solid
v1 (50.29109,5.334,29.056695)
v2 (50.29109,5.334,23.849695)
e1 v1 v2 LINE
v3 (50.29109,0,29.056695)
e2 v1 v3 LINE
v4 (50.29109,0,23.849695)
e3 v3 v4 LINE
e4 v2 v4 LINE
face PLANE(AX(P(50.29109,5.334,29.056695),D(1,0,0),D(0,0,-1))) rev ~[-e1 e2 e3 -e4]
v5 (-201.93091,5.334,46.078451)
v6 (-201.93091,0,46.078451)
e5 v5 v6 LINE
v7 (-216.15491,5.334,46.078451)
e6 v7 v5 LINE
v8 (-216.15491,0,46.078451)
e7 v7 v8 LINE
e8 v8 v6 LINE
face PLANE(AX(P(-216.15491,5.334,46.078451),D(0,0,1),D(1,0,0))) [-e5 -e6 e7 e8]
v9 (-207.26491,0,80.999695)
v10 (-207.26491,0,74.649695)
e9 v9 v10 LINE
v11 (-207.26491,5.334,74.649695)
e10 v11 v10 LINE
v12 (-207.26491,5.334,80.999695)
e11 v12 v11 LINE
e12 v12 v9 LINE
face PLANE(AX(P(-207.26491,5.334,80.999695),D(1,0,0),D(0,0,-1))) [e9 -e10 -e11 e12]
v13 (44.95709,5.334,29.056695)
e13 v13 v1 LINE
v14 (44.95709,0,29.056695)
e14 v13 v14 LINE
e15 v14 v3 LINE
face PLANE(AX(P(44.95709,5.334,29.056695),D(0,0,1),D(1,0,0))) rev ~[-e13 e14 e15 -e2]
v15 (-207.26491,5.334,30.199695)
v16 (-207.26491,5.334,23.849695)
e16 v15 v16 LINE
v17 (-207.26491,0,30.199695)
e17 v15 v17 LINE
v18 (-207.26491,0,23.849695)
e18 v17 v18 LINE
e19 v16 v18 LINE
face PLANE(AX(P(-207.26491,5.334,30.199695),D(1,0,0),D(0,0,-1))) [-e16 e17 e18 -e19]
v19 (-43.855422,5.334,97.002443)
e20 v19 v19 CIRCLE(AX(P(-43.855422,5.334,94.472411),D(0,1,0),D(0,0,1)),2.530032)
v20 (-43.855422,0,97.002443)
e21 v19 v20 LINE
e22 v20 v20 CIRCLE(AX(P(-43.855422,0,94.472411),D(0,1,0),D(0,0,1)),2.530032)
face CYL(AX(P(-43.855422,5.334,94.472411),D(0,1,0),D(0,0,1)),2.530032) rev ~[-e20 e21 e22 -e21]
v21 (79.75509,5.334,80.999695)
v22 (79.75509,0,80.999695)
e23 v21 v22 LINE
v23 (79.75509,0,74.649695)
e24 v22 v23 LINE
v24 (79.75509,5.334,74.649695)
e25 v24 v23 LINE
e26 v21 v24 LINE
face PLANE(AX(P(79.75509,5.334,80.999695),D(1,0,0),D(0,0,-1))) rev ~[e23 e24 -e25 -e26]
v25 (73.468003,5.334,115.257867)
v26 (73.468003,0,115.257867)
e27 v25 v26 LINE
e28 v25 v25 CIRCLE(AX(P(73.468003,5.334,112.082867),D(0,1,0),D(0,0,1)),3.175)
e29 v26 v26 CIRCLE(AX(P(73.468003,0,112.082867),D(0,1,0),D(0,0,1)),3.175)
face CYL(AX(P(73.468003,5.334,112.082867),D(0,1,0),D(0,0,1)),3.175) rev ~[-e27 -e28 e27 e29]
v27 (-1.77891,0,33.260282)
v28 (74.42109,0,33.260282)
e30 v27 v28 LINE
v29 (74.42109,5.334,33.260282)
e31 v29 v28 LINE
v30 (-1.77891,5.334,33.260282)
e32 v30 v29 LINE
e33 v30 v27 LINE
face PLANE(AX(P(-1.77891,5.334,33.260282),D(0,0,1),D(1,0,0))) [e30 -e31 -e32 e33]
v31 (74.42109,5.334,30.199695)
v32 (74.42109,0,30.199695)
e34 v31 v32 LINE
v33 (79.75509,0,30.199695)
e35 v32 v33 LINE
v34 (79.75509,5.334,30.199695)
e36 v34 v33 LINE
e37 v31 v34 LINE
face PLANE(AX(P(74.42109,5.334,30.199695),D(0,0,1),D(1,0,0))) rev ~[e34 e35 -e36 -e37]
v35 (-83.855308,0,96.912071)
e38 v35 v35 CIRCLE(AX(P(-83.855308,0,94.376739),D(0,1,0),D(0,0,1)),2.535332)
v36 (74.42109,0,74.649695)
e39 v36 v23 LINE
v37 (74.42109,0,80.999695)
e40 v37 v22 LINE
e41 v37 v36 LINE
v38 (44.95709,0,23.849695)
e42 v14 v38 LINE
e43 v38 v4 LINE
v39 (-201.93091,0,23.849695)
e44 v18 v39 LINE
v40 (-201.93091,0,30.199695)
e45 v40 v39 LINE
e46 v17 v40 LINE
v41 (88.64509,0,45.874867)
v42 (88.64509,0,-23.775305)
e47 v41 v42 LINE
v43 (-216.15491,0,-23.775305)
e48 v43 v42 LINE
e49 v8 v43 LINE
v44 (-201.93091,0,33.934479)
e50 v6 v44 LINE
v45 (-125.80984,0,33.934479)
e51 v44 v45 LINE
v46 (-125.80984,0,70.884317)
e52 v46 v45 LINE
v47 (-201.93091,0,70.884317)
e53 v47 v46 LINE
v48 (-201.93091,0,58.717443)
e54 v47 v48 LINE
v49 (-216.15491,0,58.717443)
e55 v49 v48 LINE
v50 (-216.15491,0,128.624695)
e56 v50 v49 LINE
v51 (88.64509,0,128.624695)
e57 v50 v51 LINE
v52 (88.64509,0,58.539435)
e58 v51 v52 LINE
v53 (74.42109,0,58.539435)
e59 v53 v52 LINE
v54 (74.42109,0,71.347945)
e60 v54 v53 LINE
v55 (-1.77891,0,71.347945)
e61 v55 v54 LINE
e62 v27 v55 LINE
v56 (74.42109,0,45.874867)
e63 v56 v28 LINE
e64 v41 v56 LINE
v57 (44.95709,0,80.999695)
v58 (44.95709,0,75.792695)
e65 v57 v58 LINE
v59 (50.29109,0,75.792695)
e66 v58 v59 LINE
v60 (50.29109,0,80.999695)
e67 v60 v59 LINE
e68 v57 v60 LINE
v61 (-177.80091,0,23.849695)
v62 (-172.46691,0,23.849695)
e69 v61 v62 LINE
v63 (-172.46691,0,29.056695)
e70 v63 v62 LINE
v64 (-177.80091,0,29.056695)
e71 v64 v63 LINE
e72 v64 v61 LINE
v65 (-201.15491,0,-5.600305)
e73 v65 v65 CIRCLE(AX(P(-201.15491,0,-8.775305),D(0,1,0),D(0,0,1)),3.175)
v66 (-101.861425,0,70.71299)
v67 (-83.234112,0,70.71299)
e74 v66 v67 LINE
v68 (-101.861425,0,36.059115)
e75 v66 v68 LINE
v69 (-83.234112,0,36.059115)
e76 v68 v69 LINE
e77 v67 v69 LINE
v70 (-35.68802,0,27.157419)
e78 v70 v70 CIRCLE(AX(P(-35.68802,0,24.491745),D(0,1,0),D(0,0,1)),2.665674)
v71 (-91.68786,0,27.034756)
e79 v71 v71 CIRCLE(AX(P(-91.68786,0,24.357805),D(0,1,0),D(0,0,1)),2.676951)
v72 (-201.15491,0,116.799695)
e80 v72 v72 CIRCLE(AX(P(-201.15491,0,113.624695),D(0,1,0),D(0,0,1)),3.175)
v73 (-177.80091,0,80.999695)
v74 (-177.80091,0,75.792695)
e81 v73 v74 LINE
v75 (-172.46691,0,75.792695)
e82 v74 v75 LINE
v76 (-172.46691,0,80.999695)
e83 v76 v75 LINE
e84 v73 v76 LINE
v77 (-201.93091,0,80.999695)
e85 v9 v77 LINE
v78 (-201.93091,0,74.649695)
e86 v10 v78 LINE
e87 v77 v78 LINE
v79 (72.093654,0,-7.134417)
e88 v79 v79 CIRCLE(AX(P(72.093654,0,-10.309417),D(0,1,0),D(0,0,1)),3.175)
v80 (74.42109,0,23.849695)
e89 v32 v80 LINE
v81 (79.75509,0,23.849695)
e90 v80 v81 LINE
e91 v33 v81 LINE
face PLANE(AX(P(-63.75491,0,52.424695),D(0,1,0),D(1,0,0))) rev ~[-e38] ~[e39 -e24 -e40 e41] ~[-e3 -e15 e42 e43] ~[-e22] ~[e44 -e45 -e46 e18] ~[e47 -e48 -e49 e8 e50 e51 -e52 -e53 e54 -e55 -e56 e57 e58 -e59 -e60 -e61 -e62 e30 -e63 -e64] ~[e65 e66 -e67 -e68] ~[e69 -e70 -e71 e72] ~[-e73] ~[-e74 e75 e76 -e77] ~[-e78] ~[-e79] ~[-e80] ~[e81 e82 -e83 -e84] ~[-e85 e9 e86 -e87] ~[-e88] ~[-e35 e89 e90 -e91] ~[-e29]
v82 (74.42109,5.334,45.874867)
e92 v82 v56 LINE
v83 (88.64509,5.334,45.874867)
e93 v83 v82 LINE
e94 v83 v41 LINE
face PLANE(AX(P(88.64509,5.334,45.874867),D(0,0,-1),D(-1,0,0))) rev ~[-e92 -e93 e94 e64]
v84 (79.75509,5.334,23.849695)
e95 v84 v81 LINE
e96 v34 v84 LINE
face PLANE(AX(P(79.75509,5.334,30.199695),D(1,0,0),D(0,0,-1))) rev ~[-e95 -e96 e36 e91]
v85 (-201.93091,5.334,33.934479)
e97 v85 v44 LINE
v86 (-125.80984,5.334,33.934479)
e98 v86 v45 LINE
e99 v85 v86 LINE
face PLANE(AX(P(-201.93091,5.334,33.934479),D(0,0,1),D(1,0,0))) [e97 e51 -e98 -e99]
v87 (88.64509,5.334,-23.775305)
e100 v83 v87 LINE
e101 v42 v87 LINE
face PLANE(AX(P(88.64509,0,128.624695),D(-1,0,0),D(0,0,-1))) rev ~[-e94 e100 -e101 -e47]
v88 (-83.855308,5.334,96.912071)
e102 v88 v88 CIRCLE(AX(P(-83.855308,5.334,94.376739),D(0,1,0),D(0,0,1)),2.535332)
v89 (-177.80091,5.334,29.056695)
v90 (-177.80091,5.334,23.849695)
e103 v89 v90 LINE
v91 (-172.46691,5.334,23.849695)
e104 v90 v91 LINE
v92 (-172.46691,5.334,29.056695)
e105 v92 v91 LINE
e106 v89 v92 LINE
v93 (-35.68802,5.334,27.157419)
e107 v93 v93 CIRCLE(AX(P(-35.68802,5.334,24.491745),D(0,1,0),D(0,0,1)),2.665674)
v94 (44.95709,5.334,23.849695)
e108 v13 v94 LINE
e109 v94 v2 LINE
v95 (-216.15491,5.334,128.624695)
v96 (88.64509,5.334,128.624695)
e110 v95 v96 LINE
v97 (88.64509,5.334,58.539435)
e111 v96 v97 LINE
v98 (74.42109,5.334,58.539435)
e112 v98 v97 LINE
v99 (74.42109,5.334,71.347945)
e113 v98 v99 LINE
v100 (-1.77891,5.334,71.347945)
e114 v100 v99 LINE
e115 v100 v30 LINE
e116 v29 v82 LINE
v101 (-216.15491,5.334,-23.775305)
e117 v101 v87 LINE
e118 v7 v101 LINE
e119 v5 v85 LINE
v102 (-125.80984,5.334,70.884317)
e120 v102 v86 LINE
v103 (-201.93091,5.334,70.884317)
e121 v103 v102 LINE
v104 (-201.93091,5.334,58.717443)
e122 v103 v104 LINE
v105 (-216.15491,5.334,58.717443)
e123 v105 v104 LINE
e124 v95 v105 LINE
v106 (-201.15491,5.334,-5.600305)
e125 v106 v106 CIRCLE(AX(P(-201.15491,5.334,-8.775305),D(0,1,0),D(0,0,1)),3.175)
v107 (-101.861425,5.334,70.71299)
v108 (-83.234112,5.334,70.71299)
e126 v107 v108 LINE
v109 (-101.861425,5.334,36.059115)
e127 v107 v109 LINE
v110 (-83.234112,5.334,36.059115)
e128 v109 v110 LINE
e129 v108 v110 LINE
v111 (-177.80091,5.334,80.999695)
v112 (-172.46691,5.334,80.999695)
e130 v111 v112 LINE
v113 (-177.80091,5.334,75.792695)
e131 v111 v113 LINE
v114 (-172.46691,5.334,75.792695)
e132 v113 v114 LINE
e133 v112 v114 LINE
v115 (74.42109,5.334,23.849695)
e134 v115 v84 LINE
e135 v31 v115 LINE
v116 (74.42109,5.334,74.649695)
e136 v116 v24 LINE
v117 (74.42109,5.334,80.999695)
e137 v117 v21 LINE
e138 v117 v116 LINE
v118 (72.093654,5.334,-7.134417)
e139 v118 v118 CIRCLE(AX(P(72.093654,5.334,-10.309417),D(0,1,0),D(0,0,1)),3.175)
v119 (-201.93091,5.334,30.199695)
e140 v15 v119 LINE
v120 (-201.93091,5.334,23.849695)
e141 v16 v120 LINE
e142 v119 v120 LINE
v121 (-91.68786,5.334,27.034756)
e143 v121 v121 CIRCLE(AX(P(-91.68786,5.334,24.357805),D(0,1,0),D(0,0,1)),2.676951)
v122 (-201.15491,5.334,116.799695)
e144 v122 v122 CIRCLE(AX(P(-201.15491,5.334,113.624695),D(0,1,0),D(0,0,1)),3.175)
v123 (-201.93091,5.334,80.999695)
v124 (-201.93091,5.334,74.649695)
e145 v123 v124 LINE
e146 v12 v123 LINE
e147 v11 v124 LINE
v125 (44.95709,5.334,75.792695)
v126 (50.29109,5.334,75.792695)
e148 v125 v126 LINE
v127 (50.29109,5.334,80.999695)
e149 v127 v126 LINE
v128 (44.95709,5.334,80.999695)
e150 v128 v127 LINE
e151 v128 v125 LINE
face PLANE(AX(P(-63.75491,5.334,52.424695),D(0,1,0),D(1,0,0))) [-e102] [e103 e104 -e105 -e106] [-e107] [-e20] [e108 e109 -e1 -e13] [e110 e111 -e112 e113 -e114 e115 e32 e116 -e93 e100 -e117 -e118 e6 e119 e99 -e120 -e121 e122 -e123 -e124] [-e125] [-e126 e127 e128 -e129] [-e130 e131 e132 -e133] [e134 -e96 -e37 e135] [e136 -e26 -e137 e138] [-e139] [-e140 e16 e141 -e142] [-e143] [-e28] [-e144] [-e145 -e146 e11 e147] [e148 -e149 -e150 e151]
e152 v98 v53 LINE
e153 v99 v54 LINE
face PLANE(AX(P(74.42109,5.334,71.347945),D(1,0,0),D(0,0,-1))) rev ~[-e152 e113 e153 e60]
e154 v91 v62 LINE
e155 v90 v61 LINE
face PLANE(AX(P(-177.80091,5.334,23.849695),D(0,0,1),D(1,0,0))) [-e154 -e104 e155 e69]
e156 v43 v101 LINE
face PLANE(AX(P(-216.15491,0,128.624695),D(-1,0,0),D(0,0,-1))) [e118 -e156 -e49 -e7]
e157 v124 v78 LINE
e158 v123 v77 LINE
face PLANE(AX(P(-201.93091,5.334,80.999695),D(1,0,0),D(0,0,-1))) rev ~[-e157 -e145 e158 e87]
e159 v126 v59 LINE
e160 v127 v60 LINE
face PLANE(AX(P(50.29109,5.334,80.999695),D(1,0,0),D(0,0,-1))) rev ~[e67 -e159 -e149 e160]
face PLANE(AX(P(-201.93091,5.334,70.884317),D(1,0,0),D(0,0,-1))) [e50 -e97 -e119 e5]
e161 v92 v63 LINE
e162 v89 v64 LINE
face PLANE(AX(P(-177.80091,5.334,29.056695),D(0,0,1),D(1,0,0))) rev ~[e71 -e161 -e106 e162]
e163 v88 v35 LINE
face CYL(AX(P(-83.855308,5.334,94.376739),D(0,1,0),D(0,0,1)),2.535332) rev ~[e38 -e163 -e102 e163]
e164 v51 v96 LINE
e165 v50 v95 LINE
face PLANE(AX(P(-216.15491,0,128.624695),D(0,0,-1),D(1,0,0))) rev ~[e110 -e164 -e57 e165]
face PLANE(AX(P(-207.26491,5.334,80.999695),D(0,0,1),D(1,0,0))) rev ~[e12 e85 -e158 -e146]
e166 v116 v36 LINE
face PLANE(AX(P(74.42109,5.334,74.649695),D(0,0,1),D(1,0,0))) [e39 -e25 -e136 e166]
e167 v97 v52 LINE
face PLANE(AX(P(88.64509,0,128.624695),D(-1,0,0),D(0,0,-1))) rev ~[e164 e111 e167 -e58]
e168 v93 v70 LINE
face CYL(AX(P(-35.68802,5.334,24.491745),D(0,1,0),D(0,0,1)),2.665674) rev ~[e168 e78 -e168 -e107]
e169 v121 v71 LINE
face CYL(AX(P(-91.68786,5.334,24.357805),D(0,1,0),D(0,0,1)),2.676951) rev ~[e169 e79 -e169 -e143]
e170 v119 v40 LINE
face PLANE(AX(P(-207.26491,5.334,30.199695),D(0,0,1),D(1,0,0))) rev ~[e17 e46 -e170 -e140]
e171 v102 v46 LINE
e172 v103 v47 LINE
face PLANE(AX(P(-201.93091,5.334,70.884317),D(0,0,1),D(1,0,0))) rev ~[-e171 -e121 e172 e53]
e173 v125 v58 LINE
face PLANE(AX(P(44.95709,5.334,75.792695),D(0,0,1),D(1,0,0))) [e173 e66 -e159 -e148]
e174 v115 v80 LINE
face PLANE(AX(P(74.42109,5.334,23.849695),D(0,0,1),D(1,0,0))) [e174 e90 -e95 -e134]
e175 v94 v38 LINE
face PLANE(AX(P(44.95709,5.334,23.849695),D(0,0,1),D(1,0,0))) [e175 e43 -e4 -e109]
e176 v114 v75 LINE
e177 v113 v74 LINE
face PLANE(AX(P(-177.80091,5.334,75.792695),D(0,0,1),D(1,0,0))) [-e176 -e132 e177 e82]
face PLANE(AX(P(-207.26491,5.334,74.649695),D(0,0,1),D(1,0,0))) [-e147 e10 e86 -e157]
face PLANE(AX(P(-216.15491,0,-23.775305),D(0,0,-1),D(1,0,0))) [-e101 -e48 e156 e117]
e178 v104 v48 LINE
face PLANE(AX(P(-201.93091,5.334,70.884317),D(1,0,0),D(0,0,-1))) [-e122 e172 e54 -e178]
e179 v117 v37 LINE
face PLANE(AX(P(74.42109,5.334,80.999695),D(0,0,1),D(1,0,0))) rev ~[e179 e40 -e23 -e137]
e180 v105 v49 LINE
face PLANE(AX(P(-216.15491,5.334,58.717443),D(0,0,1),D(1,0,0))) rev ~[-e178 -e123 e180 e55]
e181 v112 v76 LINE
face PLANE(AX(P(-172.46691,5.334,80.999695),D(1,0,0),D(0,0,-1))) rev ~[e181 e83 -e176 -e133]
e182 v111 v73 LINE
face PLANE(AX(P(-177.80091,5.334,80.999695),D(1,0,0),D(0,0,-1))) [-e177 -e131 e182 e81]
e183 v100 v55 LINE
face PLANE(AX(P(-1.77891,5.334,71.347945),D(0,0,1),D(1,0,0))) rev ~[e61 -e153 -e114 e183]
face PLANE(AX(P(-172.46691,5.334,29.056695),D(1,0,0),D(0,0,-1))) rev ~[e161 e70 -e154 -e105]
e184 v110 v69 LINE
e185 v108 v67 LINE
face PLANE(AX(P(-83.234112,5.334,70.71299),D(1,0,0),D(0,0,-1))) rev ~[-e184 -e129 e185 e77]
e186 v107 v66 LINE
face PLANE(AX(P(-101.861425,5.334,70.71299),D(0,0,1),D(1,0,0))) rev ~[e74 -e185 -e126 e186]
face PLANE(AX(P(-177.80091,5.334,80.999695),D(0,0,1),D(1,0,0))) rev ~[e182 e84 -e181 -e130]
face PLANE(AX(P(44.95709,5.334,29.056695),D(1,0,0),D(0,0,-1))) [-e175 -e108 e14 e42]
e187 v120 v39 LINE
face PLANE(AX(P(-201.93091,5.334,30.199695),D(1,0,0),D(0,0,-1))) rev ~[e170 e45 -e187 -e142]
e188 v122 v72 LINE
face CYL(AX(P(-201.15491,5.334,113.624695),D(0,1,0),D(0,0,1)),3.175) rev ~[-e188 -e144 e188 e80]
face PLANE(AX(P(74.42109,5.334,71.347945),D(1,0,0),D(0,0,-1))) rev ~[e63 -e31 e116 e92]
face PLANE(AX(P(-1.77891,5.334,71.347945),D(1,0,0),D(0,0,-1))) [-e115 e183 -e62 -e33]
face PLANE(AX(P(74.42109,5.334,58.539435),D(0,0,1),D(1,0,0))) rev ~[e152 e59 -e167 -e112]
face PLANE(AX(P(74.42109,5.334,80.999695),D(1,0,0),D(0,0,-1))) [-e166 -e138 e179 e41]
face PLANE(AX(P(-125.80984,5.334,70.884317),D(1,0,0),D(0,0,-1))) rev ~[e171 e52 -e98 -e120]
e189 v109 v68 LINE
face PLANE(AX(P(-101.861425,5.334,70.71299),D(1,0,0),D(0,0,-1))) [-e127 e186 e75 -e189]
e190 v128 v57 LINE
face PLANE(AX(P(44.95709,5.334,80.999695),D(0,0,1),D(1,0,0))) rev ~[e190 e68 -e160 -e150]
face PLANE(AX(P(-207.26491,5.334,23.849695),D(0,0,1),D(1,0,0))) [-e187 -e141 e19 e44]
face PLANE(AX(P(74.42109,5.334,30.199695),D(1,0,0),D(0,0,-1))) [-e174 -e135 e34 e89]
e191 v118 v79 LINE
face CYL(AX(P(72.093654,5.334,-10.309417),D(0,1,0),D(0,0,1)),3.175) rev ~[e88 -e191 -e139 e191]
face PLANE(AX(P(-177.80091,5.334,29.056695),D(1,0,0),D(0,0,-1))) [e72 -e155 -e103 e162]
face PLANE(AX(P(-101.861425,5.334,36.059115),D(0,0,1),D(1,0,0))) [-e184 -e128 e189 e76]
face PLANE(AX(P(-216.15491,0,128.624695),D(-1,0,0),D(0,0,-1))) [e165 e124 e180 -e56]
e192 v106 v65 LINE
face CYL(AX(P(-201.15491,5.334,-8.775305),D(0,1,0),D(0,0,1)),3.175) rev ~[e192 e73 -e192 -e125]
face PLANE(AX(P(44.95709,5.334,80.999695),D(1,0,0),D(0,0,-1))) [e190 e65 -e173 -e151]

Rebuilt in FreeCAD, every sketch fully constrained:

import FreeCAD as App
import Part
import Sketcher
Q = App.Units.Quantity

doc = App.newDocument("Part")
params = doc.addObject("Spreadsheet::Sheet", "Params")
for row, (alias, value) in enumerate([
    ("sketch1_width", "12 in"),
    ("sketch1_height", "6 in"),
    ("pad1_length", "0.21 in"),
    ("sketch2_diameter", "0.25 in"),
    ("pocket1_length", "10 mm"),
    ("sketch4_width", "0.21 in"),
    ("sketch4_height", "0.25 in"),
    ("sketch4_height2", "0.205 in"),
    ("sketch5_width", "3 in"),
    ("sketch5_height", "1.35 in"),
    ("sketch6_width", "3 in"),
    ("sketch8_width", "0.56 in"),
    ("sketch10_width", "0.56 in"),
], start=1):
    params.set(f"A{row}", alias)
    params.set(f"B{row}", "=" + value)
    params.setAlias(f"B{row}", alias)

body = doc.addObject("PartDesign::Body", "Body")

# Sketch on XZ plane
sketch1 = doc.addObject("Sketcher::SketchObject", "Sketch")
body.addObject(sketch1)
sketch1.AttachmentSupport = (doc.XZ_Plane, [""])
sketch1.MapMode = "FlatFace"
sketch1.addGeometry(Part.LineSegment(App.Vector(-216, -24, 0), App.Vector(-216, 129, 0)), False)
sketch1.addGeometry(Part.LineSegment(App.Vector(-216, 129, 0), App.Vector(89, 129, 0)), False)
sketch1.addGeometry(Part.LineSegment(App.Vector(89, 129, 0), App.Vector(89, -24, 0)), False)
sketch1.addGeometry(Part.LineSegment(App.Vector(89, -24, 0), App.Vector(-216, -24, 0)), False)
sketch1.addConstraint(Sketcher.Constraint("Coincident", 0, 2, 1, 1))
sketch1.addConstraint(Sketcher.Constraint("Coincident", 1, 2, 2, 1))
sketch1.addConstraint(Sketcher.Constraint("Coincident", 2, 2, 3, 1))
sketch1.addConstraint(Sketcher.Constraint("Coincident", 3, 2, 0, 1))
sketch1.addConstraint(Sketcher.Constraint("Vertical", 0))
sketch1.addConstraint(Sketcher.Constraint("Horizontal", 1))
sketch1.addConstraint(Sketcher.Constraint("Vertical", 2))
sketch1.addConstraint(Sketcher.Constraint("Horizontal", 3))
sketch1.addConstraint(Sketcher.Constraint("DistanceX", 1, 1, 1, 2, Q("12 in")))
sketch1.addConstraint(Sketcher.Constraint("DistanceY", 0, 1, 0, 2, Q("6 in")))
sketch1.addConstraint(Sketcher.Constraint("DistanceX", 0, 2, -1, 1, 216.15491))
sketch1.addConstraint(Sketcher.Constraint("DistanceY", -1, 1, 0, 2, 128.624695))
sketch1.setExpression("Constraints[8]", "Params.sketch1_width")
sketch1.setExpression("Constraints[9]", "Params.sketch1_height")
pad1 = doc.addObject("PartDesign::Pad", "Pad")
body.addObject(pad1)
pad1.Profile = sketch1
pad1.setExpression("Length", "Params.pad1_length")
pad1.Reversed = True

# Sketch on XZ plane
sketch2 = doc.addObject("Sketcher::SketchObject", "Sketch001")
body.addObject(sketch2)
sketch2.AttachmentSupport = (doc.XZ_Plane, [""])
sketch2.MapMode = "FlatFace"
sketch2.AttachmentOffset = App.Placement(App.Vector(0, 0, -0.21 * 25.4), App.Rotation())
sketch2.addGeometry(Part.Circle(App.Vector(-201.2, 113.6, 0), App.Vector(0, 0, 1), 3.2), False)
sketch2.addGeometry(Part.Circle(App.Vector(-201.2, -8.8, 0), App.Vector(0, 0, 1), 3.2), False)
sketch2.addGeometry(Part.Circle(App.Vector(73.5, 112.1, 0), App.Vector(0, 0, 1), 3.2), False)
sketch2.addGeometry(Part.Circle(App.Vector(72.1, -10.3, 0), App.Vector(0, 0, 1), 3.2), False)
sketch2.addConstraint(Sketcher.Constraint("Equal", 0, 1))
sketch2.addConstraint(Sketcher.Constraint("Equal", 1, 2))
sketch2.addConstraint(Sketcher.Constraint("Equal", 2, 3))
sketch2.addConstraint(Sketcher.Constraint("Vertical", 0, 3, 1, 3))
sketch2.addConstraint(Sketcher.Constraint("Diameter", 0, Q("0.25 in")))
sketch2.addConstraint(Sketcher.Constraint("DistanceY", 1, 3, 0, 3, 122.4))
sketch2.addConstraint(Sketcher.Constraint("DistanceX", 0, 3, -1, 1, 201.15491))
sketch2.addConstraint(Sketcher.Constraint("DistanceY", 2, 3, 0, 3, 1.541828))
sketch2.addConstraint(Sketcher.Constraint("DistanceX", 3, 3, 2, 3, 1.374349))
sketch2.addConstraint(Sketcher.Constraint("DistanceY", -1, 1, 0, 3, 113.624695))
sketch2.addConstraint(Sketcher.Constraint("DistanceX", -1, 1, 2, 3, 73.468003))
sketch2.addConstraint(Sketcher.Constraint("DistanceY", 3, 3, -1, 1, 10.309417))
sketch2.setExpression("Constraints[4]", "Params.sketch2_diameter")
pocket1 = doc.addObject("PartDesign::Pocket", "Pocket")
body.addObject(pocket1)
pocket1.Profile = sketch2
pocket1.setExpression("Length", "Params.pocket1_length")
pocket1.Reversed = True

# Sketch on XZ plane
sketch3 = doc.addObject("Sketcher::SketchObject", "Sketch002")
body.addObject(sketch3)
sketch3.AttachmentSupport = (doc.XZ_Plane, [""])
sketch3.MapMode = "FlatFace"
sketch3.AttachmentOffset = App.Placement(App.Vector(0, 0, -0.21 * 25.4), App.Rotation())
sketch3.addGeometry(Part.Circle(App.Vector(-91.7, 24.4, 0), App.Vector(0, 0, 1), 2.7), False)
sketch3.addGeometry(Part.Circle(App.Vector(-35.7, 24.5, 0), App.Vector(0, 0, 1), 2.7), False)
sketch3.addGeometry(Part.Circle(App.Vector(-43.9, 94.5, 0), App.Vector(0, 0, 1), 2.5), False)
sketch3.addGeometry(Part.Circle(App.Vector(-83.9, 94.4, 0), App.Vector(0, 0, 1), 2.5), False)
sketch3.addConstraint(Sketcher.Constraint("Diameter", 0, 5.353902))
sketch3.addConstraint(Sketcher.Constraint("Diameter", 1, 5.331349))
sketch3.addConstraint(Sketcher.Constraint("Diameter", 2, 5.060064))
sketch3.addConstraint(Sketcher.Constraint("Diameter", 3, 5.070663))
sketch3.addConstraint(Sketcher.Constraint("DistanceX", 2, 3, 1, 3, 8.167402))
sketch3.addConstraint(Sketcher.Constraint("DistanceX", 0, 3, -1, 1, 91.68786))
sketch3.addConstraint(Sketcher.Constraint("DistanceX", 1, 3, -1, 1, 35.68802))
sketch3.addConstraint(Sketcher.Constraint("DistanceY", -1, 1, 2, 3, 94.472411))
sketch3.addConstraint(Sketcher.Constraint("DistanceY", -1, 1, 3, 3, 94.376739))
sketch3.addConstraint(Sketcher.Constraint("DistanceY", 0, 3, 1, 3, 0.13394))
sketch3.addConstraint(Sketcher.Constraint("DistanceY", -1, 1, 0, 3, 24.357805))
sketch3.addConstraint(Sketcher.Constraint("DistanceX", 3, 3, -1, 1, 83.855308))
pocket2 = doc.addObject("PartDesign::Pocket", "Pocket001")
body.addObject(pocket2)
pocket2.Profile = sketch3
pocket2.Type = "ThroughAll"
pocket2.Reversed = True

# Sketch on XZ plane
sketch4 = doc.addObject("Sketcher::SketchObject", "Sketch003")
body.addObject(sketch4)
sketch4.AttachmentSupport = (doc.XZ_Plane, [""])
sketch4.MapMode = "FlatFace"
sketch4.AttachmentOffset = App.Placement(App.Vector(0, 0, -0.21 * 25.4), App.Rotation())
sketch4.addGeometry(Part.LineSegment(App.Vector(-207, 75, 0), App.Vector(-207, 81, 0)), False)
sketch4.addGeometry(Part.LineSegment(App.Vector(-207, 81, 0), App.Vector(-202, 81, 0)), False)
sketch4.addGeometry(Part.LineSegment(App.Vector(-202, 81, 0), App.Vector(-202, 75, 0)), False)
sketch4.addGeometry(Part.LineSegment(App.Vector(-202, 75, 0), App.Vector(-207, 75, 0)), False)
sketch4.addGeometry(Part.LineSegment(App.Vector(-207, 24, 0), App.Vector(-207, 30, 0)), False)
sketch4.addGeometry(Part.LineSegment(App.Vector(-207, 30, 0), App.Vector(-202, 30, 0)), False)
sketch4.addGeometry(Part.LineSegment(App.Vector(-202, 30, 0), App.Vector(-202, 24, 0)), False)
sketch4.addGeometry(Part.LineSegment(App.Vector(-202, 24, 0), App.Vector(-207, 24, 0)), False)
sketch4.addGeometry(Part.LineSegment(App.Vector(-178, 24, 0), App.Vector(-178, 29, 0)), False)
sketch4.addGeometry(Part.LineSegment(App.Vector(-178, 29, 0), App.Vector(-172, 29, 0)), False)
sketch4.addGeometry(Part.LineSegment(App.Vector(-172, 29, 0), App.Vector(-172, 24, 0)), False)
sketch4.addGeometry(Part.LineSegment(App.Vector(-172, 24, 0), App.Vector(-178, 24, 0)), False)
sketch4.addGeometry(Part.LineSegment(App.Vector(-178, 76, 0), App.Vector(-178, 81, 0)), False)
sketch4.addGeometry(Part.LineSegment(App.Vector(-178, 81, 0), App.Vector(-172, 81, 0)), False)
sketch4.addGeometry(Part.LineSegment(App.Vector(-172, 81, 0), App.Vector(-172, 76, 0)), False)
sketch4.addGeometry(Part.LineSegment(App.Vector(-172, 76, 0), App.Vector(-178, 76, 0)), False)
sketch4.addGeometry(Part.LineSegment(App.Vector(74, 75, 0), App.Vector(74, 81, 0)), False)
sketch4.addGeometry(Part.LineSegment(App.Vector(74, 81, 0), App.Vector(80, 81, 0)), False)
sketch4.addGeometry(Part.LineSegment(App.Vector(80, 81, 0), App.Vector(80, 75, 0)), False)
sketch4.addGeometry(Part.LineSegment(App.Vector(80, 75, 0), App.Vector(74, 75, 0)), False)
sketch4.addGeometry(Part.LineSegment(App.Vector(45, 76, 0), App.Vector(45, 81, 0)), False)
sketch4.addGeometry(Part.LineSegment(App.Vector(45, 81, 0), App.Vector(50, 81, 0)), False)
sketch4.addGeometry(Part.LineSegment(App.Vector(50, 81, 0), App.Vector(50, 76, 0)), False)
sketch4.addGeometry(Part.LineSegment(App.Vector(50, 76, 0), App.Vector(45, 76, 0)), False)
sketch4.addGeometry(Part.LineSegment(App.Vector(74, 24, 0), App.Vector(74, 30, 0)), False)
sketch4.addGeometry(Part.LineSegment(App.Vector(74, 30, 0), App.Vector(80, 30, 0)), False)
sketch4.addGeometry(Part.LineSegment(App.Vector(80, 30, 0), App.Vector(80, 24, 0)), False)
sketch4.addGeometry(Part.LineSegment(App.Vector(80, 24, 0), App.Vector(74, 24, 0)), False)
sketch4.addGeometry(Part.LineSegment(App.Vector(45, 24, 0), App.Vector(45, 29, 0)), False)
sketch4.addGeometry(Part.LineSegment(App.Vector(45, 29, 0), App.Vector(50, 29, 0)), False)
sketch4.addGeometry(Part.LineSegment(App.Vector(50, 29, 0), App.Vector(50, 24, 0)), False)
sketch4.addGeometry(Part.LineSegment(App.Vector(50, 24, 0), App.Vector(45, 24, 0)), False)
sketch4.addConstraint(Sketcher.Constraint("Coincident", 0, 2, 1, 1))
sketch4.addConstraint(Sketcher.Constraint("Coincident", 1, 2, 2, 1))
sketch4.addConstraint(Sketcher.Constraint("Coincident", 2, 2, 3, 1))
sketch4.addConstraint(Sketcher.Constraint("Coincident", 3, 2, 0, 1))
sketch4.addConstraint(Sketcher.Constraint("Coincident", 4, 2, 5, 1))
sketch4.addConstraint(Sketcher.Constraint("Coincident", 5, 2, 6, 1))
sketch4.addConstraint(Sketcher.Constraint("Coincident", 6, 2, 7, 1))
sketch4.addConstraint(Sketcher.Constraint("Coincident", 7, 2, 4, 1))
sketch4.addConstraint(Sketcher.Constraint("Coincident", 8, 2, 9, 1))
sketch4.addConstraint(Sketcher.Constraint("Coincident", 9, 2, 10, 1))
sketch4.addConstraint(Sketcher.Constraint("Coincident", 10, 2, 11, 1))
sketch4.addConstraint(Sketcher.Constraint("Coincident", 11, 2, 8, 1))
sketch4.addConstraint(Sketcher.Constraint("Coincident", 12, 2, 13, 1))
sketch4.addConstraint(Sketcher.Constraint("Coincident", 13, 2, 14, 1))
sketch4.addConstraint(Sketcher.Constraint("Coincident", 14, 2, 15, 1))
sketch4.addConstraint(Sketcher.Constraint("Coincident", 15, 2, 12, 1))
sketch4.addConstraint(Sketcher.Constraint("Coincident", 16, 2, 17, 1))
sketch4.addConstraint(Sketcher.Constraint("Coincident", 17, 2, 18, 1))
sketch4.addConstraint(Sketcher.Constraint("Coincident", 18, 2, 19, 1))
sketch4.addConstraint(Sketcher.Constraint("Coincident", 19, 2, 16, 1))
sketch4.addConstraint(Sketcher.Constraint("Coincident", 20, 2, 21, 1))
sketch4.addConstraint(Sketcher.Constraint("Coincident", 21, 2, 22, 1))
sketch4.addConstraint(Sketcher.Constraint("Coincident", 22, 2, 23, 1))
sketch4.addConstraint(Sketcher.Constraint("Coincident", 23, 2, 20, 1))
sketch4.addConstraint(Sketcher.Constraint("Coincident", 24, 2, 25, 1))
sketch4.addConstraint(Sketcher.Constraint("Coincident", 25, 2, 26, 1))
sketch4.addConstraint(Sketcher.Constraint("Coincident", 26, 2, 27, 1))
sketch4.addConstraint(Sketcher.Constraint("Coincident", 27, 2, 24, 1))
sketch4.addConstraint(Sketcher.Constraint("Coincident", 28, 2, 29, 1))
sketch4.addConstraint(Sketcher.Constraint("Coincident", 29, 2, 30, 1))
sketch4.addConstraint(Sketcher.Constraint("Coincident", 30, 2, 31, 1))
sketch4.addConstraint(Sketcher.Constraint("Coincident", 31, 2, 28, 1))
sketch4.addConstraint(Sketcher.Constraint("Vertical", 0))
sketch4.addConstraint(Sketcher.Constraint("Horizontal", 1))
sketch4.addConstraint(Sketcher.Constraint("Vertical", 2))
sketch4.addConstraint(Sketcher.Constraint("Horizontal", 3))
sketch4.addConstraint(Sketcher.Constraint("Vertical", 4))
sketch4.addConstraint(Sketcher.Constraint("Horizontal", 5))
sketch4.addConstraint(Sketcher.Constraint("Vertical", 6))
sketch4.addConstraint(Sketcher.Constraint("Horizontal", 7))
sketch4.addConstraint(Sketcher.Constraint("Vertical", 8))
sketch4.addConstraint(Sketcher.Constraint("Horizontal", 9))
sketch4.addConstraint(Sketcher.Constraint("Vertical", 10))
sketch4.addConstraint(Sketcher.Constraint("Horizontal", 11))
sketch4.addConstraint(Sketcher.Constraint("Vertical", 12))
sketch4.addConstraint(Sketcher.Constraint("Horizontal", 13))
sketch4.addConstraint(Sketcher.Constraint("Vertical", 14))
sketch4.addConstraint(Sketcher.Constraint("Horizontal", 15))
sketch4.addConstraint(Sketcher.Constraint("Vertical", 16))
sketch4.addConstraint(Sketcher.Constraint("Horizontal", 17))
sketch4.addConstraint(Sketcher.Constraint("Vertical", 18))
sketch4.addConstraint(Sketcher.Constraint("Horizontal", 19))
sketch4.addConstraint(Sketcher.Constraint("Vertical", 20))
sketch4.addConstraint(Sketcher.Constraint("Horizontal", 21))
sketch4.addConstraint(Sketcher.Constraint("Vertical", 22))
sketch4.addConstraint(Sketcher.Constraint("Horizontal", 23))
sketch4.addConstraint(Sketcher.Constraint("Vertical", 24))
sketch4.addConstraint(Sketcher.Constraint("Horizontal", 25))
sketch4.addConstraint(Sketcher.Constraint("Vertical", 26))
sketch4.addConstraint(Sketcher.Constraint("Horizontal", 27))
sketch4.addConstraint(Sketcher.Constraint("Vertical", 28))
sketch4.addConstraint(Sketcher.Constraint("Horizontal", 29))
sketch4.addConstraint(Sketcher.Constraint("Vertical", 30))
sketch4.addConstraint(Sketcher.Constraint("Horizontal", 31))
sketch4.addConstraint(Sketcher.Constraint("Horizontal", 7, 2, 10, 2))
sketch4.addConstraint(Sketcher.Constraint("Horizontal", 1, 2, 12, 2))
sketch4.addConstraint(Sketcher.Constraint("Horizontal", 13, 2, 16, 2))
sketch4.addConstraint(Sketcher.Constraint("Horizontal", 3, 2, 18, 2))
sketch4.addConstraint(Sketcher.Constraint("Horizontal", 17, 2, 20, 2))
sketch4.addConstraint(Sketcher.Constraint("Horizontal", 15, 2, 22, 2))
sketch4.addConstraint(Sketcher.Constraint("Horizontal", 5, 2, 24, 2))
sketch4.addConstraint(Sketcher.Constraint("Horizontal", 11, 2, 26, 2))
sketch4.addConstraint(Sketcher.Constraint("Horizontal", 9, 2, 28, 2))
sketch4.addConstraint(Sketcher.Constraint("Horizontal", 27, 2, 30, 2))
sketch4.addConstraint(Sketcher.Constraint("Vertical", 3, 2, 4, 2))
sketch4.addConstraint(Sketcher.Constraint("Vertical", 2, 2, 5, 2))
sketch4.addConstraint(Sketcher.Constraint("Vertical", 11, 2, 12, 2))
sketch4.addConstraint(Sketcher.Constraint("Vertical", 10, 2, 13, 2))
sketch4.addConstraint(Sketcher.Constraint("Vertical", 19, 2, 24, 2))
sketch4.addConstraint(Sketcher.Constraint("Vertical", 18, 2, 25, 2))
sketch4.addConstraint(Sketcher.Constraint("Vertical", 23, 2, 28, 2))
sketch4.addConstraint(Sketcher.Constraint("Vertical", 22, 2, 29, 2))
sketch4.addConstraint(Sketcher.Constraint("Equal", 7, 9))
sketch4.addConstraint(Sketcher.Constraint("Equal", 15, 17))
sketch4.addConstraint(Sketcher.Constraint("Equal", 19, 21))
sketch4.addConstraint(Sketcher.Constraint("Equal", 2, 4))
sketch4.addConstraint(Sketcher.Constraint("Equal", 10, 12))
sketch4.addConstraint(Sketcher.Constraint("DistanceY", 4, 2, 0, 2, Q("2 in")))
sketch4.addConstraint(Sketcher.Constraint("DistanceX", 1, 1, 1, 2, Q("0.21 in")))
sketch4.addConstraint(Sketcher.Constraint("DistanceY", 0, 1, 0, 2, Q("0.25 in")))
sketch4.addConstraint(Sketcher.Constraint("DistanceY", 8, 1, 8, 2, Q("0.205 in")))
sketch4.addConstraint(Sketcher.Constraint("DistanceX", 5, 2, 8, 2, Q("0.95 in")))
sketch4.addConstraint(Sketcher.Constraint("DistanceX", 13, 2, 16, 2, Q("9.72 in")))
sketch4.addConstraint(Sketcher.Constraint("DistanceX", 20, 2, 16, 2, Q("1.16 in")))
sketch4.addConstraint(Sketcher.Constraint("DistanceX", 0, 2, -1, 1, 207.26491))
sketch4.addConstraint(Sketcher.Constraint("DistanceY", -1, 1, 0, 2, 80.999695))
sketch4.setExpression("Constraints[88]", "Params.sketch4_width")
sketch4.setExpression("Constraints[89]", "Params.sketch4_height")
sketch4.setExpression("Constraints[90]", "Params.sketch4_height2")
pocket3 = doc.addObject("PartDesign::Pocket", "Pocket002")
body.addObject(pocket3)
pocket3.Profile = sketch4
pocket3.Type = "ThroughAll"
pocket3.Reversed = True

# Sketch on XZ plane
sketch5 = doc.addObject("Sketcher::SketchObject", "Sketch004")
body.addObject(sketch5)
sketch5.AttachmentSupport = (doc.XZ_Plane, [""])
sketch5.MapMode = "FlatFace"
sketch5.AttachmentOffset = App.Placement(App.Vector(0, 0, -0.21 * 25.4), App.Rotation())
sketch5.addGeometry(Part.LineSegment(App.Vector(-2, 35, 0), App.Vector(-2, 70, 0)), False)
sketch5.addGeometry(Part.LineSegment(App.Vector(-2, 70, 0), App.Vector(74, 70, 0)), False)
sketch5.addGeometry(Part.LineSegment(App.Vector(74, 70, 0), App.Vector(74, 35, 0)), False)
sketch5.addGeometry(Part.LineSegment(App.Vector(74, 35, 0), App.Vector(-2, 35, 0)), False)
sketch5.addConstraint(Sketcher.Constraint("Coincident", 0, 2, 1, 1))
sketch5.addConstraint(Sketcher.Constraint("Coincident", 1, 2, 2, 1))
sketch5.addConstraint(Sketcher.Constraint("Coincident", 2, 2, 3, 1))
sketch5.addConstraint(Sketcher.Constraint("Coincident", 3, 2, 0, 1))
sketch5.addConstraint(Sketcher.Constraint("Vertical", 0))
sketch5.addConstraint(Sketcher.Constraint("Horizontal", 1))
sketch5.addConstraint(Sketcher.Constraint("Vertical", 2))
sketch5.addConstraint(Sketcher.Constraint("Horizontal", 3))
sketch5.addConstraint(Sketcher.Constraint("DistanceX", 1, 1, 1, 2, Q("3 in")))
sketch5.addConstraint(Sketcher.Constraint("DistanceY", 0, 1, 0, 2, Q("1.35 in")))
sketch5.addConstraint(Sketcher.Constraint("DistanceX", 0, 2, -1, 1, 1.77891))
sketch5.addConstraint(Sketcher.Constraint("DistanceY", -1, 1, 0, 2, 69.569695))
sketch5.setExpression("Constraints[8]", "Params.sketch5_width")
sketch5.setExpression("Constraints[9]", "Params.sketch5_height")
pocket4 = doc.addObject("PartDesign::Pocket", "Pocket003")
body.addObject(pocket4)
pocket4.Profile = sketch5
pocket4.Type = "ThroughAll"
pocket4.Reversed = True

# Sketch on XZ plane
sketch6 = doc.addObject("Sketcher::SketchObject", "Sketch005")
body.addObject(sketch6)
sketch6.AttachmentSupport = (doc.XZ_Plane, [""])
sketch6.MapMode = "FlatFace"
sketch6.AttachmentOffset = App.Placement(App.Vector(0, 0, -0.21 * 25.4), App.Rotation())
sketch6.addGeometry(Part.LineSegment(App.Vector(-1.8, 69.6, 0), App.Vector(-1.8, 71.3, 0)), False)
sketch6.addGeometry(Part.LineSegment(App.Vector(-1.8, 71.3, 0), App.Vector(74.4, 71.3, 0)), False)
sketch6.addGeometry(Part.LineSegment(App.Vector(74.4, 71.3, 0), App.Vector(74.4, 69.6, 0)), False)
sketch6.addGeometry(Part.LineSegment(App.Vector(74.4, 69.6, 0), App.Vector(-1.8, 69.6, 0)), False)
sketch6.addGeometry(Part.LineSegment(App.Vector(-1.8, 33.3, 0), App.Vector(-1.8, 35.3, 0)), False)
sketch6.addGeometry(Part.LineSegment(App.Vector(-1.8, 35.3, 0), App.Vector(74.4, 35.3, 0)), False)
sketch6.addGeometry(Part.LineSegment(App.Vector(74.4, 35.3, 0), App.Vector(74.4, 33.3, 0)), False)
sketch6.addGeometry(Part.LineSegment(App.Vector(74.4, 33.3, 0), App.Vector(-1.8, 33.3, 0)), False)
sketch6.addConstraint(Sketcher.Constraint("Coincident", 0, 2, 1, 1))
sketch6.addConstraint(Sketcher.Constraint("Coincident", 1, 2, 2, 1))
sketch6.addConstraint(Sketcher.Constraint("Coincident", 2, 2, 3, 1))
sketch6.addConstraint(Sketcher.Constraint("Coincident", 3, 2, 0, 1))
sketch6.addConstraint(Sketcher.Constraint("Coincident", 4, 2, 5, 1))
sketch6.addConstraint(Sketcher.Constraint("Coincident", 5, 2, 6, 1))
sketch6.addConstraint(Sketcher.Constraint("Coincident", 6, 2, 7, 1))
sketch6.addConstraint(Sketcher.Constraint("Coincident", 7, 2, 4, 1))
sketch6.addConstraint(Sketcher.Constraint("Vertical", 0))
sketch6.addConstraint(Sketcher.Constraint("Horizontal", 1))
sketch6.addConstraint(Sketcher.Constraint("Vertical", 2))
sketch6.addConstraint(Sketcher.Constraint("Horizontal", 3))
sketch6.addConstraint(Sketcher.Constraint("Vertical", 4))
sketch6.addConstraint(Sketcher.Constraint("Horizontal", 5))
sketch6.addConstraint(Sketcher.Constraint("Vertical", 6))
sketch6.addConstraint(Sketcher.Constraint("Horizontal", 7))
sketch6.addConstraint(Sketcher.Constraint("Vertical", 3, 2, 4, 2))
sketch6.addConstraint(Sketcher.Constraint("Vertical", 2, 2, 5, 2))
sketch6.addConstraint(Sketcher.Constraint("DistanceX", 1, 1, 1, 2, Q("3 in")))
sketch6.addConstraint(Sketcher.Constraint("DistanceY", 4, 2, 3, 2, Q("1.35 in")))
sketch6.addConstraint(Sketcher.Constraint("DistanceY", 0, 1, 0, 2, 1.77825))
sketch6.addConstraint(Sketcher.Constraint("DistanceY", 4, 1, 4, 2, 2.019413))
sketch6.addConstraint(Sketcher.Constraint("DistanceX", 0, 2, -1, 1, 1.77891))
sketch6.addConstraint(Sketcher.Constraint("DistanceY", -1, 1, 6, 2, 33.260282))
sketch6.setExpression("Constraints[18]", "Params.sketch6_width")
pocket5 = doc.addObject("PartDesign::Pocket", "Pocket004")
body.addObject(pocket5)
pocket5.Profile = sketch6
pocket5.Type = "ThroughAll"
pocket5.Reversed = True

# Sketch on XZ plane
sketch7 = doc.addObject("Sketcher::SketchObject", "Sketch006")
body.addObject(sketch7)
sketch7.AttachmentSupport = (doc.XZ_Plane, [""])
sketch7.MapMode = "FlatFace"
sketch7.AttachmentOffset = App.Placement(App.Vector(0, 0, -0.21 * 25.4), App.Rotation())
sketch7.addGeometry(Part.LineSegment(App.Vector(-202, 34, 0), App.Vector(-202, 71, 0)), False)
sketch7.addGeometry(Part.LineSegment(App.Vector(-202, 71, 0), App.Vector(-126, 71, 0)), False)
sketch7.addGeometry(Part.LineSegment(App.Vector(-126, 71, 0), App.Vector(-126, 34, 0)), False)
sketch7.addGeometry(Part.LineSegment(App.Vector(-126, 34, 0), App.Vector(-202, 34, 0)), False)
sketch7.addConstraint(Sketcher.Constraint("Coincident", 0, 2, 1, 1))
sketch7.addConstraint(Sketcher.Constraint("Coincident", 1, 2, 2, 1))
sketch7.addConstraint(Sketcher.Constraint("Coincident", 2, 2, 3, 1))
sketch7.addConstraint(Sketcher.Constraint("Coincident", 3, 2, 0, 1))
sketch7.addConstraint(Sketcher.Constraint("Vertical", 0))
sketch7.addConstraint(Sketcher.Constraint("Horizontal", 1))
sketch7.addConstraint(Sketcher.Constraint("Vertical", 2))
sketch7.addConstraint(Sketcher.Constraint("Horizontal", 3))
sketch7.addConstraint(Sketcher.Constraint("DistanceX", 1, 1, 1, 2, 76.12107))
sketch7.addConstraint(Sketcher.Constraint("DistanceY", 0, 1, 0, 2, 36.949838))
sketch7.addConstraint(Sketcher.Constraint("DistanceX", 0, 2, -1, 1, 201.93091))
sketch7.addConstraint(Sketcher.Constraint("DistanceY", -1, 1, 2, 2, 33.934479))
pocket6 = doc.addObject("PartDesign::Pocket", "Pocket005")
body.addObject(pocket6)
pocket6.Profile = sketch7
pocket6.Type = "ThroughAll"
pocket6.Reversed = True

# Sketch on XZ plane
sketch8 = doc.addObject("Sketcher::SketchObject", "Sketch007")
body.addObject(sketch8)
sketch8.AttachmentSupport = (doc.XZ_Plane, [""])
sketch8.MapMode = "FlatFace"
sketch8.AttachmentOffset = App.Placement(App.Vector(0, 0, -0.21 * 25.4), App.Rotation())
sketch8.addGeometry(Part.LineSegment(App.Vector(-216, 46, 0), App.Vector(-216, 59, 0)), False)
sketch8.addGeometry(Part.LineSegment(App.Vector(-216, 59, 0), App.Vector(-202, 59, 0)), False)
sketch8.addGeometry(Part.LineSegment(App.Vector(-202, 59, 0), App.Vector(-202, 46, 0)), False)
sketch8.addGeometry(Part.LineSegment(App.Vector(-202, 46, 0), App.Vector(-216, 46, 0)), False)
sketch8.addConstraint(Sketcher.Constraint("Coincident", 0, 2, 1, 1))
sketch8.addConstraint(Sketcher.Constraint("Coincident", 1, 2, 2, 1))
sketch8.addConstraint(Sketcher.Constraint("Coincident", 2, 2, 3, 1))
sketch8.addConstraint(Sketcher.Constraint("Coincident", 3, 2, 0, 1))
sketch8.addConstraint(Sketcher.Constraint("Vertical", 0))
sketch8.addConstraint(Sketcher.Constraint("Horizontal", 1))
sketch8.addConstraint(Sketcher.Constraint("Vertical", 2))
sketch8.addConstraint(Sketcher.Constraint("Horizontal", 3))
sketch8.addConstraint(Sketcher.Constraint("DistanceX", 1, 1, 1, 2, Q("0.56 in")))
sketch8.addConstraint(Sketcher.Constraint("DistanceY", 0, 1, 0, 2, 12.638992))
sketch8.addConstraint(Sketcher.Constraint("DistanceX", 0, 2, -1, 1, 216.15491))
sketch8.addConstraint(Sketcher.Constraint("DistanceY", -1, 1, 2, 2, 46.078451))
sketch8.setExpression("Constraints[8]", "Params.sketch8_width")
pocket7 = doc.addObject("PartDesign::Pocket", "Pocket006")
body.addObject(pocket7)
pocket7.Profile = sketch8
pocket7.Type = "ThroughAll"
pocket7.Reversed = True

# Sketch on XZ plane
sketch9 = doc.addObject("Sketcher::SketchObject", "Sketch008")
body.addObject(sketch9)
sketch9.AttachmentSupport = (doc.XZ_Plane, [""])
sketch9.MapMode = "FlatFace"
sketch9.AttachmentOffset = App.Placement(App.Vector(0, 0, -0.21 * 25.4), App.Rotation())
sketch9.addGeometry(Part.LineSegment(App.Vector(-102, 36, 0), App.Vector(-102, 71, 0)), False)
sketch9.addGeometry(Part.LineSegment(App.Vector(-102, 71, 0), App.Vector(-83, 71, 0)), False)
sketch9.addGeometry(Part.LineSegment(App.Vector(-83, 71, 0), App.Vector(-83, 36, 0)), False)
sketch9.addGeometry(Part.LineSegment(App.Vector(-83, 36, 0), App.Vector(-102, 36, 0)), False)
sketch9.addConstraint(Sketcher.Constraint("Coincident", 0, 2, 1, 1))
sketch9.addConstraint(Sketcher.Constraint("Coincident", 1, 2, 2, 1))
sketch9.addConstraint(Sketcher.Constraint("Coincident", 2, 2, 3, 1))
sketch9.addConstraint(Sketcher.Constraint("Coincident", 3, 2, 0, 1))
sketch9.addConstraint(Sketcher.Constraint("Vertical", 0))
sketch9.addConstraint(Sketcher.Constraint("Horizontal", 1))
sketch9.addConstraint(Sketcher.Constraint("Vertical", 2))
sketch9.addConstraint(Sketcher.Constraint("Horizontal", 3))
sketch9.addConstraint(Sketcher.Constraint("DistanceX", 1, 1, 1, 2, 18.627313))
sketch9.addConstraint(Sketcher.Constraint("DistanceY", 0, 1, 0, 2, 34.653875))
sketch9.addConstraint(Sketcher.Constraint("DistanceY", -1, 1, 0, 2, 70.71299))
sketch9.addConstraint(Sketcher.Constraint("DistanceX", 1, 2, -1, 1, 83.234112))
pocket8 = doc.addObject("PartDesign::Pocket", "Pocket007")
body.addObject(pocket8)
pocket8.Profile = sketch9
pocket8.Type = "ThroughAll"
pocket8.Reversed = True

# Sketch on XZ plane
sketch10 = doc.addObject("Sketcher::SketchObject", "Sketch009")
body.addObject(sketch10)
sketch10.AttachmentSupport = (doc.XZ_Plane, [""])
sketch10.MapMode = "FlatFace"
sketch10.AttachmentOffset = App.Placement(App.Vector(0, 0, -0.21 * 25.4), App.Rotation())
sketch10.addGeometry(Part.LineSegment(App.Vector(74, 59, 0), App.Vector(89, 59, 0)), False)
sketch10.addGeometry(Part.LineSegment(App.Vector(89, 59, 0), App.Vector(89, 46, 0)), False)
sketch10.addGeometry(Part.LineSegment(App.Vector(89, 46, 0), App.Vector(74, 46, 0)), False)
sketch10.addGeometry(Part.LineSegment(App.Vector(74, 46, 0), App.Vector(74, 59, 0)), False)
sketch10.addConstraint(Sketcher.Constraint("Coincident", 0, 2, 1, 1))
sketch10.addConstraint(Sketcher.Constraint("Coincident", 1, 2, 2, 1))
sketch10.addConstraint(Sketcher.Constraint("Coincident", 2, 2, 3, 1))
sketch10.addConstraint(Sketcher.Constraint("Coincident", 3, 2, 0, 1))
sketch10.addConstraint(Sketcher.Constraint("Horizontal", 0))
sketch10.addConstraint(Sketcher.Constraint("Vertical", 1))
sketch10.addConstraint(Sketcher.Constraint("Horizontal", 2))
sketch10.addConstraint(Sketcher.Constraint("Vertical", 3))
sketch10.addConstraint(Sketcher.Constraint("DistanceX", 0, 1, 0, 2, Q("0.56 in")))
sketch10.addConstraint(Sketcher.Constraint("DistanceY", 1, 2, 1, 1, 12.664569))
sketch10.addConstraint(Sketcher.Constraint("DistanceX", -1, 1, 0, 2, 88.64509))
sketch10.addConstraint(Sketcher.Constraint("DistanceY", -1, 1, 0, 2, 58.539435))
sketch10.setExpression("Constraints[8]", "Params.sketch10_width")
pocket9 = doc.addObject("PartDesign::Pocket", "Pocket008")
body.addObject(pocket9)
pocket9.Profile = sketch10
pocket9.Type = "ThroughAll"
pocket9.Reversed = True

doc.recompute()
